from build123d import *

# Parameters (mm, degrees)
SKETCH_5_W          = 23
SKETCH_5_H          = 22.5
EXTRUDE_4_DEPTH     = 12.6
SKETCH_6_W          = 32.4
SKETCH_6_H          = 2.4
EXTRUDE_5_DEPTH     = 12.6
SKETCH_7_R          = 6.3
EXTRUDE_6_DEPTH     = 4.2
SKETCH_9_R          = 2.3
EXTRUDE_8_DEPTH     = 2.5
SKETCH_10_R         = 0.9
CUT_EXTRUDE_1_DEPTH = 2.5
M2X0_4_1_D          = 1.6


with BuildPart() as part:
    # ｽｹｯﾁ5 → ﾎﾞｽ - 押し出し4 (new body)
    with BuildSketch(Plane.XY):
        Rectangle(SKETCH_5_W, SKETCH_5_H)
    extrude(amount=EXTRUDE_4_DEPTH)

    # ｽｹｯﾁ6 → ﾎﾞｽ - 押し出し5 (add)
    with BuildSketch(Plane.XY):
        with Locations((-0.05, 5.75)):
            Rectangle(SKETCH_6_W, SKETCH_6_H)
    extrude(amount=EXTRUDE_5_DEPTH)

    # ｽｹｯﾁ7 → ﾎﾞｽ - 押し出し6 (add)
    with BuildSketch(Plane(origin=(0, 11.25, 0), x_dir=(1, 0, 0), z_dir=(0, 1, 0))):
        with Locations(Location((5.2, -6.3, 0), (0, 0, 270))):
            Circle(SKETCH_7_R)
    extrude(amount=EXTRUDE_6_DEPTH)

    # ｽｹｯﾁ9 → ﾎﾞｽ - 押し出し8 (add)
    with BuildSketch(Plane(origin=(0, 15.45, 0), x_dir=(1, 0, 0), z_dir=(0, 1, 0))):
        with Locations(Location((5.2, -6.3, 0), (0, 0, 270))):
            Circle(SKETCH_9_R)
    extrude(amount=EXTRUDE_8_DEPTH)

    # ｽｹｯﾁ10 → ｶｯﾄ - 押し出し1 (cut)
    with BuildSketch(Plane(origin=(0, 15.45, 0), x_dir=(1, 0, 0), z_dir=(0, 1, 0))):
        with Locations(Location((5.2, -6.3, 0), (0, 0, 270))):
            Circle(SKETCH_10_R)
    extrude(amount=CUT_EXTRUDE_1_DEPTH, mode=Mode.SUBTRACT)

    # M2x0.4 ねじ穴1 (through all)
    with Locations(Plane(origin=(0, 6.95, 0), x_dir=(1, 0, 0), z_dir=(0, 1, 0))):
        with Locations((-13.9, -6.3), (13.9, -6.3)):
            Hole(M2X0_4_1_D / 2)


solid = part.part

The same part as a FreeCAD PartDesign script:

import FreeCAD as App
import Part
import Sketcher

V = App.Vector

doc = App.newDocument("Part")
body = doc.addObject("PartDesign::Body", "Body")

# Sketch on XY plane
sketch1 = doc.addObject("Sketcher::SketchObject", "Sketch")
body.addObject(sketch1)
sketch1.AttachmentSupport = (doc.XY_Plane, [""])
sketch1.MapMode = "FlatFace"
sketch1.addGeometry([
    Part.LineSegment(V(-12, 11, 0), V(-12, -11, 0)),
    Part.LineSegment(V(-12, -11, 0), V(12, -11, 0)),
    Part.LineSegment(V(12, -11, 0), V(12, 11, 0)),
    Part.LineSegment(V(12, 11, 0), V(-12, 11, 0)),
], False)
sketch1.addConstraint([
    Sketcher.Constraint("Coincident", 0, 2, 1, 1),
    Sketcher.Constraint("Coincident", 1, 2, 2, 1),
    Sketcher.Constraint("Coincident", 2, 2, 3, 1),
    Sketcher.Constraint("Coincident", 3, 2, 0, 1),
    Sketcher.Constraint("Vertical", 0),
    Sketcher.Constraint("Horizontal", 1),
    Sketcher.Constraint("Vertical", 2),
    Sketcher.Constraint("Horizontal", 3),
    Sketcher.Constraint("Symmetric", 0, 2, 2, 2, -1, 1),
    Sketcher.Constraint("DistanceX", 1, 1, 1, 2, 23.0),
    Sketcher.Constraint("DistanceY", 0, 2, 0, 1, 22.5),
])
pad1 = doc.addObject("PartDesign::Pad", "Pad")
body.addObject(pad1)
pad1.Profile = sketch1
pad1.Length = 12.6

# Sketch on XY plane
sketch2 = doc.addObject("Sketcher::SketchObject", "Sketch001")
body.addObject(sketch2)
sketch2.AttachmentSupport = (doc.XY_Plane, [""])
sketch2.MapMode = "FlatFace"
sketch2.addGeometry([
    Part.LineSegment(V(-16.2, 7, 0), V(-16.2, 4.5, 0)),
    Part.LineSegment(V(-16.2, 4.5, 0), V(16.1, 4.5, 0)),
    Part.LineSegment(V(16.1, 4.5, 0), V(16.1, 7, 0)),
    Part.LineSegment(V(16.1, 7, 0), V(-16.2, 7, 0)),
], False)
sketch2.addConstraint([
    Sketcher.Constraint("Coincident", 0, 2, 1, 1),
    Sketcher.Constraint("Coincident", 1, 2, 2, 1),
    Sketcher.Constraint("Coincident", 2, 2, 3, 1),
    Sketcher.Constraint("Coincident", 3, 2, 0, 1),
    Sketcher.Constraint("Vertical", 0),
    Sketcher.Constraint("Horizontal", 1),
    Sketcher.Constraint("Vertical", 2),
    Sketcher.Constraint("Horizontal", 3),
    Sketcher.Constraint("DistanceX", 1, 1, 1, 2, 32.4),
    Sketcher.Constraint("DistanceY", 0, 2, 0, 1, 2.4),
    Sketcher.Constraint("DistanceX", 0, 2, -1, 1, 16.25),
    Sketcher.Constraint("DistanceY", -1, 1, 0, 2, 4.55),
])
pad2 = doc.addObject("PartDesign::Pad", "Pad001")
body.addObject(pad2)
pad2.Profile = sketch2
pad2.Length = 12.6

# Sketch on XZ plane
sketch3 = doc.addObject("Sketcher::SketchObject", "Sketch002")
body.addObject(sketch3)
sketch3.AttachmentSupport = (doc.XZ_Plane, [""])
sketch3.MapMode = "FlatFace"
sketch3.AttachmentOffset = App.Placement(V(0, 0, -11.25), App.Rotation())
sketch3.addGeometry(Part.Circle(V(5, 6, 0), V(0, 0, 1), 6), False)
sketch3.addConstraint([
    Sketcher.Constraint("Diameter", 0, 12.6),
    Sketcher.Constraint("DistanceX", -1, 1, 0, 3, 5.2),
    Sketcher.Constraint("DistanceY", -1, 1, 0, 3, 6.3),
])
pad3 = doc.addObject("PartDesign::Pad", "Pad002")
body.addObject(pad3)
pad3.Profile = sketch3
pad3.Length = 4.2
pad3.Reversed = True

# Sketch on XZ plane
sketch4 = doc.addObject("Sketcher::SketchObject", "Sketch003")
body.addObject(sketch4)
sketch4.AttachmentSupport = (doc.XZ_Plane, [""])
sketch4.MapMode = "FlatFace"
sketch4.AttachmentOffset = App.Placement(V(0, 0, -15.45), App.Rotation())
sketch4.addGeometry(Part.Circle(V(5.2, 6.3, 0), V(0, 0, 1), 2.3), False)
sketch4.addConstraint([
    Sketcher.Constraint("Diameter", 0, 4.6),
    Sketcher.Constraint("DistanceX", -1, 1, 0, 3, 5.2),
    Sketcher.Constraint("DistanceY", -1, 1, 0, 3, 6.3),
])
pad4 = doc.addObject("PartDesign::Pad", "Pad003")
body.addObject(pad4)
pad4.Profile = sketch4
pad4.Length = 2.5
pad4.Reversed = True

# Sketch on XZ plane
sketch5 = doc.addObject("Sketcher::SketchObject", "Sketch004")
body.addObject(sketch5)
sketch5.AttachmentSupport = (doc.XZ_Plane, [""])
sketch5.MapMode = "FlatFace"
sketch5.AttachmentOffset = App.Placement(V(0, 0, -15.45), App.Rotation())
sketch5.addGeometry(Part.Circle(V(5.2, 6.3, 0), V(0, 0, 1), 0.9), False)
sketch5.addConstraint([
    Sketcher.Constraint("Diameter", 0, 1.8),
    Sketcher.Constraint("DistanceX", -1, 1, 0, 3, 5.2),
    Sketcher.Constraint("DistanceY", -1, 1, 0, 3, 6.3),
])
pocket1 = doc.addObject("PartDesign::Pocket", "Pocket")
body.addObject(pocket1)
pocket1.Profile = sketch5
pocket1.Length = 2.5

# Sketch on XZ plane
sketch6 = doc.addObject("Sketcher::SketchObject", "Sketch005")
body.addObject(sketch6)
sketch6.AttachmentSupport = (doc.XZ_Plane, [""])
sketch6.MapMode = "FlatFace"
sketch6.AttachmentOffset = App.Placement(V(0, 0, -6.95), App.Rotation())
sketch6.addGeometry([
    Part.Circle(V(-13.9, 6.3, 0), V(0, 0, 1), 0.8),
    Part.Circle(V(13.9, 6.3, 0), V(0, 0, 1), 0.8),
], False)
sketch6.addConstraint([
    Sketcher.Constraint("Equal", 0, 1),
    Sketcher.Constraint("Symmetric", 0, 3, 1, 3, -2),
    Sketcher.Constraint("Diameter", 0, 1.6),
    Sketcher.Constraint("DistanceX", 0, 3, -1, 1, 13.9),
    Sketcher.Constraint("DistanceY", -1, 1, 0, 3, 6.3),
])
doc.recompute()
hole = doc.addObject("PartDesign::Hole", "Hole")
body.addObject(hole)
hole.Profile = sketch6
hole.ThreadType = "None"
hole.Diameter = 1.6
hole.DepthType = "ThroughAll"
hole.Reversed = True

doc.recompute()
